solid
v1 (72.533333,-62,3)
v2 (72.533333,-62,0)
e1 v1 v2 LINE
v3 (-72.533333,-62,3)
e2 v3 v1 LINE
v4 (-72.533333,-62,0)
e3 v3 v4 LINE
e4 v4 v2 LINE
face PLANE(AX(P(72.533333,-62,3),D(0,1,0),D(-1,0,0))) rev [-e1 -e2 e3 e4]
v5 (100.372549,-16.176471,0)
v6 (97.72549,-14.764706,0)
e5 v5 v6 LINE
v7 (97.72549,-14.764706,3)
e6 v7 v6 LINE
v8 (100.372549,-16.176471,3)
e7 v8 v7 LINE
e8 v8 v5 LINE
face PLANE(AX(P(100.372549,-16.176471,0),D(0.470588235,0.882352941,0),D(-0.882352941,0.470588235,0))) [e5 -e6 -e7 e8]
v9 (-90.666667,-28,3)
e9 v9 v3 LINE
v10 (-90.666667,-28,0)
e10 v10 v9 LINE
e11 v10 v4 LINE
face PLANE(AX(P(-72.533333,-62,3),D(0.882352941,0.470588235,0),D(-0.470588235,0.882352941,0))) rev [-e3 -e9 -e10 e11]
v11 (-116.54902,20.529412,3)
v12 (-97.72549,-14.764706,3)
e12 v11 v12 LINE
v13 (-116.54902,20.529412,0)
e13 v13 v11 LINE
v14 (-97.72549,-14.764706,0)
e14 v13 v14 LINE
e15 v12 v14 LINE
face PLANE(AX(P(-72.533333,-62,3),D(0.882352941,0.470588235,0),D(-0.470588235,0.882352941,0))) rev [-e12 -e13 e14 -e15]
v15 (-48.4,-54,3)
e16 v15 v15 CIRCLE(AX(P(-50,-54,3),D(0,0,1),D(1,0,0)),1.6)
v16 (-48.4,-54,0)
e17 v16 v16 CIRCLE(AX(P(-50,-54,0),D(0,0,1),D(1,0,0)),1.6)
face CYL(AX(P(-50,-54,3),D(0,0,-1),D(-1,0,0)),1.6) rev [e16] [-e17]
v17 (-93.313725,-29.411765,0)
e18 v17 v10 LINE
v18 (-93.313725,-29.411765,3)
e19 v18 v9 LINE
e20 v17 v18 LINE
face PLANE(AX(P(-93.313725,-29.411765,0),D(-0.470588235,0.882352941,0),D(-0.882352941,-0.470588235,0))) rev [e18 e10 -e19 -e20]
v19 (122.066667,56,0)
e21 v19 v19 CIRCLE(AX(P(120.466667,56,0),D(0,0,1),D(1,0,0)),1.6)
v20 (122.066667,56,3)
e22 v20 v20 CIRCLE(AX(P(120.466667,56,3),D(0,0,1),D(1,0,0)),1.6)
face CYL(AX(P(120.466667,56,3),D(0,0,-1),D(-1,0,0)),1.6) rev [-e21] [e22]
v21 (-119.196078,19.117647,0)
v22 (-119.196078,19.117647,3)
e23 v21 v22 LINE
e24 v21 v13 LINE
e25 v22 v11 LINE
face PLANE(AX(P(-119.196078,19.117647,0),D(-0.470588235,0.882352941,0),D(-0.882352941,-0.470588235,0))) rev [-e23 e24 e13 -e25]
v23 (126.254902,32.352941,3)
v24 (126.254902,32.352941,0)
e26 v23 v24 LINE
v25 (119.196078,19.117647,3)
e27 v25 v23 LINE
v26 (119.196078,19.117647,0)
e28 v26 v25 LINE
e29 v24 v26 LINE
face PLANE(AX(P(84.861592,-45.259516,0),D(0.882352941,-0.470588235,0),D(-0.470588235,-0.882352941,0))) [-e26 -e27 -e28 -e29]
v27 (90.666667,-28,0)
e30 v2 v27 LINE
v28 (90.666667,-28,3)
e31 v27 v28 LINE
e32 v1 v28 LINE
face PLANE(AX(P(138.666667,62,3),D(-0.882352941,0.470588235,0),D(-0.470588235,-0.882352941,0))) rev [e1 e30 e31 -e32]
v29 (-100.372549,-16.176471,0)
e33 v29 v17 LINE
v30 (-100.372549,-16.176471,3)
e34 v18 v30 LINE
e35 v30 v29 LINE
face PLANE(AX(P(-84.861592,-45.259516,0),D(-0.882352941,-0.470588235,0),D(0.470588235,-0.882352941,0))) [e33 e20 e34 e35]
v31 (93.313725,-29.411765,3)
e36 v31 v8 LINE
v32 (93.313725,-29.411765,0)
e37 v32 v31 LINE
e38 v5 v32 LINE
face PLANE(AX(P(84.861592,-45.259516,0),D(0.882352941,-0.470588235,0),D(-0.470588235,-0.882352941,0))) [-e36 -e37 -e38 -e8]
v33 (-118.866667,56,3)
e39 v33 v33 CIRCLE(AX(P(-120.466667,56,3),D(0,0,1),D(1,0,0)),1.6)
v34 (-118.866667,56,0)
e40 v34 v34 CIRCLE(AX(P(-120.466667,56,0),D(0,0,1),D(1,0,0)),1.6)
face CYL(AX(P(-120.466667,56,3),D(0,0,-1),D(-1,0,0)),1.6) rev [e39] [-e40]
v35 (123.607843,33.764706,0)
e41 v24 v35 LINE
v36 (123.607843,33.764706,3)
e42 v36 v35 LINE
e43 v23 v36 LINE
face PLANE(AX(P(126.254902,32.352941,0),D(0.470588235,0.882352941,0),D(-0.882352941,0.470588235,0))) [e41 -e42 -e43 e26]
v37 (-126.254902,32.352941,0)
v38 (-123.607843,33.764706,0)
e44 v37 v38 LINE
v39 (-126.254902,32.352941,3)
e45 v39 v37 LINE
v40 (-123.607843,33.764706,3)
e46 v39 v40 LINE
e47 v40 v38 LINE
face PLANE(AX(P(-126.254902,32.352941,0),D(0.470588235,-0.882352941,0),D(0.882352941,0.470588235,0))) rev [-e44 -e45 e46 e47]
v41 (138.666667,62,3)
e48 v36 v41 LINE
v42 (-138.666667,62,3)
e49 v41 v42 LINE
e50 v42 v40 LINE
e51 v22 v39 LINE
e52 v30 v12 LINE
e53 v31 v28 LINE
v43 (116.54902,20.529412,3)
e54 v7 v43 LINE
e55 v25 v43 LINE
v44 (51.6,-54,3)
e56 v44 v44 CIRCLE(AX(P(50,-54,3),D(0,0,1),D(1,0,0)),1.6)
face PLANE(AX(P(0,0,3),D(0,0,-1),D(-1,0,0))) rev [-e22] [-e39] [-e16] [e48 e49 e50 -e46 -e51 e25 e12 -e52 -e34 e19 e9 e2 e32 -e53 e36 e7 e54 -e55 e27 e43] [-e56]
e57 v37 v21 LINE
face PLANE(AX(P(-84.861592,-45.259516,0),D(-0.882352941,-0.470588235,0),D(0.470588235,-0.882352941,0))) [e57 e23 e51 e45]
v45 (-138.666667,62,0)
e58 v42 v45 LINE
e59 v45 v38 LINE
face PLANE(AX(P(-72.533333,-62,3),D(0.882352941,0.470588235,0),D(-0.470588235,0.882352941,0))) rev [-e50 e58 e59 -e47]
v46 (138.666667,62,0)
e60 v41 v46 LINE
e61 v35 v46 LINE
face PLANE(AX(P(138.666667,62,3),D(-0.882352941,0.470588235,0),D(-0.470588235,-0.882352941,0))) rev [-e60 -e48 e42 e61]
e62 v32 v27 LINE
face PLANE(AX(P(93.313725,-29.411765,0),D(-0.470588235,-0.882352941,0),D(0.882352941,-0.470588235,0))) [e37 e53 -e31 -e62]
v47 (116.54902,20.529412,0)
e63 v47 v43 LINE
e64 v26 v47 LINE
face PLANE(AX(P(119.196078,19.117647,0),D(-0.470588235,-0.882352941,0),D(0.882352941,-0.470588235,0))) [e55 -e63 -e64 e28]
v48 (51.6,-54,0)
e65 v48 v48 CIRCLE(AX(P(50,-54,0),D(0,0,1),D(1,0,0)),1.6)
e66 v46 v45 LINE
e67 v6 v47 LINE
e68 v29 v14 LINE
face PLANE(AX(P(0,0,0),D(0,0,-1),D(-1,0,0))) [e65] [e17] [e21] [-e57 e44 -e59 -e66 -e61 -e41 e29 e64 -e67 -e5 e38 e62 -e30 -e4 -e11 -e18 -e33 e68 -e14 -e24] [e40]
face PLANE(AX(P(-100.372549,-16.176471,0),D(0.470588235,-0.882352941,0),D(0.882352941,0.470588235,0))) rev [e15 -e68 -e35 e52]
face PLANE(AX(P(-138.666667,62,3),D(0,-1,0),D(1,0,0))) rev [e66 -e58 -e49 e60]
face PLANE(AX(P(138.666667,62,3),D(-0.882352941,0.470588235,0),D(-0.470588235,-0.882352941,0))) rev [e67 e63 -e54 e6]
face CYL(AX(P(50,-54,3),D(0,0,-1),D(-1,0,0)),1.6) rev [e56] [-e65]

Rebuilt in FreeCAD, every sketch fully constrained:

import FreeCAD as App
import Part
import Sketcher

V = App.Vector


def add_polygon(sketch, points):
    """Adds a closed chain of lines whose ends are joined by coincident constraints."""
    first, n = sketch.GeometryCount, len(points)
    for a, b in zip(points, points[1:] + points[:1]):
        sketch.addGeometry(Part.LineSegment(App.Vector(*a, 0), App.Vector(*b, 0)), False)
    for i in range(n):
        sketch.addConstraint(Sketcher.Constraint("Coincident", first + i, 2, first + (i + 1) % n, 1))

doc = App.newDocument("Part")
body = doc.addObject("PartDesign::Body", "Body")

# Sketch on XY plane
sketch1 = doc.addObject("Sketcher::SketchObject", "Sketch")
body.addObject(sketch1)
sketch1.AttachmentSupport = (doc.XY_Plane, [""])
sketch1.MapMode = "FlatFace"
add_polygon(sketch1, [(138.7, 62), (-138.7, 62), (-72.5, -62), (72.5, -62)])  # lines 0-3
sketch1.addGeometry(Part.Circle(V(50, -54, 0), V(0, 0, 1), 1.6), False)  # 4
sketch1.addGeometry(Part.Circle(V(-50, -54, 0), V(0, 0, 1), 1.6), False)  # 5
sketch1.addGeometry(Part.Circle(V(120.5, 56, 0), V(0, 0, 1), 1.6), False)  # 6
sketch1.addGeometry(Part.Circle(V(-120.5, 56, 0), V(0, 0, 1), 1.6), False)  # 7
sketch1.addConstraint([
    Sketcher.Constraint("Horizontal", 0),
    Sketcher.Constraint("Horizontal", 2),
    Sketcher.Constraint("Equal", 4, 5),
    Sketcher.Constraint("Equal", 5, 6),
    Sketcher.Constraint("Equal", 6, 7),
    Sketcher.Constraint("Symmetric", 4, 3, 5, 3, -2),
    Sketcher.Constraint("Symmetric", 6, 3, 7, 3, -2),
    Sketcher.Constraint("Equal", 1, 3),
    Sketcher.Constraint("Diameter", 4, 3.2),
    Sketcher.Constraint("DistanceX", -1, 1, 4, 3, 50.0),
    Sketcher.Constraint("DistanceY", 4, 3, -1, 1, 54.0),
    Sketcher.Constraint("DistanceY", -1, 1, 6, 3, 56.0),
    Sketcher.Constraint("DistanceY", -1, 1, 0, 2, 62.0),
    Sketcher.Constraint("DistanceY", 1, 2, -1, 1, 62.0),
    Sketcher.Constraint("DistanceX", 1, 2, 6, 3, 193.0),
    Sketcher.Constraint("DistanceX", 7, 3, 2, 2, 193.0),
    Sketcher.Constraint("DistanceX", 0, 2, 7, 3, 18.2),
    Sketcher.Constraint("DistanceX", 0, 2, 0, 1, 277.333333),
])
pad1 = doc.addObject("PartDesign::Pad", "Pad")
body.addObject(pad1)
pad1.Profile = sketch1
pad1.Length = 3

# Sketch on an angled plane
sketch2 = doc.addObject("Sketcher::SketchObject", "Sketch001")
body.addObject(sketch2)
sketch2.Placement = App.Placement(V(-82.214533, -43.847751, 0), App.Rotation(V(0, 0, 1), V(-0.470588235, 0.882352941, 0), V(-0.882352941, -0.470588235, 0), "ZXY"))
add_polygon(sketch2, [(0, 88), (0, 73), (3, 73), (3, 88)])  # lines 0-3
add_polygon(sketch2, [(0, 33), (0, 18), (3, 18), (3, 33)])  # lines 4-7
sketch2.addConstraint([
    Sketcher.Constraint("Vertical", 0),
    Sketcher.Constraint("Horizontal", 1),
    Sketcher.Constraint("Vertical", 2),
    Sketcher.Constraint("Horizontal", 3),
    Sketcher.Constraint("Vertical", 4),
    Sketcher.Constraint("Horizontal", 5),
    Sketcher.Constraint("Vertical", 6),
    Sketcher.Constraint("Horizontal", 7),
    Sketcher.Constraint("PointOnObject", 0, 2, -2),
    Sketcher.Constraint("PointOnObject", 4, 2, -2),
    Sketcher.Constraint("Vertical", 2, 2, 5, 2),
    Sketcher.Constraint("Equal", 2, 4),
    Sketcher.Constraint("DistanceX", 1, 1, 1, 2, 3.0),
    Sketcher.Constraint("DistanceY", 0, 2, 0, 1, 15.0),
    Sketcher.Constraint("DistanceY", 4, 2, 0, 2, 55.0),
    Sketcher.Constraint("DistanceY", -1, 1, 0, 2, 72.960784),
])
pad2 = doc.addObject("PartDesign::Pad", "Pad001")
body.addObject(pad2)
pad2.Profile = sketch2
pad2.Length = 3
doc.recompute()

mirrored = doc.addObject("PartDesign::Mirrored", "Mirrored")
body.addObject(mirrored)
mirrored.Originals = [pad2]
mirrored.MirrorPlane = (doc.YZ_Plane, [""])
body.Tip = mirrored

doc.recompute()
